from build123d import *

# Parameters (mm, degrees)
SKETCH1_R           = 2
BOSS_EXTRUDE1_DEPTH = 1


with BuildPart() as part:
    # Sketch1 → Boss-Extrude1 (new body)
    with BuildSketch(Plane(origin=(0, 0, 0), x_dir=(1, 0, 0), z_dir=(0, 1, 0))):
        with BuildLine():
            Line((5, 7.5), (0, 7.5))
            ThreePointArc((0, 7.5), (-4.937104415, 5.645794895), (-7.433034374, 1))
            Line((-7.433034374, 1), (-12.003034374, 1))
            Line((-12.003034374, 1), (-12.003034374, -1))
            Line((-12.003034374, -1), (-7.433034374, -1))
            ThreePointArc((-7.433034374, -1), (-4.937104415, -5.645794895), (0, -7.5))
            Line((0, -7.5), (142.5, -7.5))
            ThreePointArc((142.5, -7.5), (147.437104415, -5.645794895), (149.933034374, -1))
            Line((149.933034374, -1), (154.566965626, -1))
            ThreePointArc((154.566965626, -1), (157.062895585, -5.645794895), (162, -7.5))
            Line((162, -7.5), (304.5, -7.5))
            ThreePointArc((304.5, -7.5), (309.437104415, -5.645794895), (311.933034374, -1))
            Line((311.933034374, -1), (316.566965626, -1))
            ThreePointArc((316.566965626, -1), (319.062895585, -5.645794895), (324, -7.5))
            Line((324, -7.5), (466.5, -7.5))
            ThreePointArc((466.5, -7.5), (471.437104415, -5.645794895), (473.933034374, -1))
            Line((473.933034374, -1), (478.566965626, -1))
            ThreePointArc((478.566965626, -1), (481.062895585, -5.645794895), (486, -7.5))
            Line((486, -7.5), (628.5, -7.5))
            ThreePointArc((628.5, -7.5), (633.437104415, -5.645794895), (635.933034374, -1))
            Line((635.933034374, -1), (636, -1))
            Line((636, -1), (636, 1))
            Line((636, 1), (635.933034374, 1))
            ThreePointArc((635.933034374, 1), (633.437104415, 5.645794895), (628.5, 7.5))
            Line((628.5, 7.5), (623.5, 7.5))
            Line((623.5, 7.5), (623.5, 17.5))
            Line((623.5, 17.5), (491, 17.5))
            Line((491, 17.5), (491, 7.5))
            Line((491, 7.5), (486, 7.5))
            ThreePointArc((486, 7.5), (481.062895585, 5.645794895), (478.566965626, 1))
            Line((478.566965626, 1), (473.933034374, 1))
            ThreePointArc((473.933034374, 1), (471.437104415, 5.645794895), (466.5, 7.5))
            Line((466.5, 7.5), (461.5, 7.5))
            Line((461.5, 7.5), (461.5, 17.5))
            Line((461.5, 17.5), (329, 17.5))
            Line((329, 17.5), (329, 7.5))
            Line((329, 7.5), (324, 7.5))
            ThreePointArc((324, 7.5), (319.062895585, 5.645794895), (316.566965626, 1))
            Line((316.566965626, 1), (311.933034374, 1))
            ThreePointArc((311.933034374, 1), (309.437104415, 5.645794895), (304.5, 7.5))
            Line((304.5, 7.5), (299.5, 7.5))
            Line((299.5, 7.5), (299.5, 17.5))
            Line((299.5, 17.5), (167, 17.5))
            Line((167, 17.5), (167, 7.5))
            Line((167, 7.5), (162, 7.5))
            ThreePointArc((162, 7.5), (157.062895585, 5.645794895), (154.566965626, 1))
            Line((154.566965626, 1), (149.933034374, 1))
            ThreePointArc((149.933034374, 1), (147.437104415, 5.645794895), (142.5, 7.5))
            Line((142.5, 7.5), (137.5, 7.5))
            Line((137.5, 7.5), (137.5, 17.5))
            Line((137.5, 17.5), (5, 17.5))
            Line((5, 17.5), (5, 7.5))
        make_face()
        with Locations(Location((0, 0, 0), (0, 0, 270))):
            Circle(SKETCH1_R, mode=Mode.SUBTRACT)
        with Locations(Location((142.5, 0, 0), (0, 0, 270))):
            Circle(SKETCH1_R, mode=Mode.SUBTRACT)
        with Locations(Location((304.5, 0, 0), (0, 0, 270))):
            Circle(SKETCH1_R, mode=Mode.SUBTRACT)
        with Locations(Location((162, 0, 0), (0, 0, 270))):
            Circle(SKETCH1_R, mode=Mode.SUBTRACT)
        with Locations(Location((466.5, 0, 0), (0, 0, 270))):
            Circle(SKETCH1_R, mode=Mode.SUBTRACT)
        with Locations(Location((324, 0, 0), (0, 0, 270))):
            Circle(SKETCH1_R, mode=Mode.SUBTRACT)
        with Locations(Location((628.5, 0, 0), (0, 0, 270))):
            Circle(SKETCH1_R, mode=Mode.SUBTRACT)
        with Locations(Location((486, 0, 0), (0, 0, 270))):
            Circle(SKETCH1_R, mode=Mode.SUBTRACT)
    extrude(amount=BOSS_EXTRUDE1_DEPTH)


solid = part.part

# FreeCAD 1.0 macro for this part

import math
import FreeCAD as App
import Part
import Sketcher
from FreeCAD import Vector

doc = App.newDocument("Part")
body = doc.addObject("PartDesign::Body", "Body")

sketch1 = doc.addObject("Sketcher::SketchObject", "Sketch")
body.addObject(sketch1)
sketch1.AttachmentSupport = (doc.XZ_Plane, [""])
sketch1.MapMode = "FlatFace"
sketch1.addGeometry([
    Part.LineSegment(Vector(5, -7.5, 0), Vector(0, -7.5, 0)),
    Part.ArcOfCircle(Part.Circle(Vector(0, 0, 0), Vector(0, 0, 1), 7.5), math.radians(-172), math.radians(-90)),
    Part.LineSegment(Vector(-7.43, -1, 0), Vector(-12, -1, 0)),
    Part.LineSegment(Vector(-12, -1, 0), Vector(-12, 1, 0)),
    Part.LineSegment(Vector(-12, 1, 0), Vector(-7.43, 1, 0)),
    Part.ArcOfCircle(Part.Circle(Vector(0, 0, 0), Vector(0, 0, 1), 7.5), math.radians(90), math.radians(172)),
    Part.LineSegment(Vector(0, 7.5, 0), Vector(142.5, 7.5, 0)),
    Part.ArcOfCircle(Part.Circle(Vector(142.5, 0, 0), Vector(0, 0, 1), 7.5), math.radians(8), math.radians(90)),
    Part.LineSegment(Vector(149.93, 1, 0), Vector(154.57, 1, 0)),
    Part.ArcOfCircle(Part.Circle(Vector(162, 0, 0), Vector(0, 0, 1), 7.5), math.radians(90), math.radians(172)),
    Part.LineSegment(Vector(162, 7.5, 0), Vector(304.5, 7.5, 0)),
    Part.ArcOfCircle(Part.Circle(Vector(304.5, 0, 0), Vector(0, 0, 1), 7.5), math.radians(8), math.radians(90)),
    Part.LineSegment(Vector(311.93, 1, 0), Vector(316.57, 1, 0)),
    Part.ArcOfCircle(Part.Circle(Vector(324, 0, 0), Vector(0, 0, 1), 7.5), math.radians(90), math.radians(172)),
    Part.LineSegment(Vector(324, 7.5, 0), Vector(466.5, 7.5, 0)),
    Part.ArcOfCircle(Part.Circle(Vector(466.5, 0, 0), Vector(0, 0, 1), 7.5), math.radians(8), math.radians(90)),
    Part.LineSegment(Vector(473.93, 1, 0), Vector(478.57, 1, 0)),
    Part.ArcOfCircle(Part.Circle(Vector(486, 0, 0), Vector(0, 0, 1), 7.5), math.radians(90), math.radians(172)),
    Part.LineSegment(Vector(486, 7.5, 0), Vector(628.5, 7.5, 0)),
    Part.ArcOfCircle(Part.Circle(Vector(628.5, 0, 0), Vector(0, 0, 1), 7.5), math.radians(8), math.radians(90)),
    Part.LineSegment(Vector(635.93, 1, 0), Vector(636, 1, 0)),
    Part.LineSegment(Vector(636, 1, 0), Vector(636, -1, 0)),
    Part.LineSegment(Vector(636, -1, 0), Vector(635.93, -1, 0)),
    Part.ArcOfCircle(Part.Circle(Vector(628.5, 0, 0), Vector(0, 0, 1), 7.5), math.radians(-90), math.radians(-8)),
    Part.LineSegment(Vector(628.5, -7.5, 0), Vector(623.5, -7.5, 0)),
    Part.LineSegment(Vector(623.5, -7.5, 0), Vector(623.5, -17.5, 0)),
    Part.LineSegment(Vector(623.5, -17.5, 0), Vector(491, -17.5, 0)),
    Part.LineSegment(Vector(491, -17.5, 0), Vector(491, -7.5, 0)),
    Part.LineSegment(Vector(491, -7.5, 0), Vector(486, -7.5, 0)),
    Part.ArcOfCircle(Part.Circle(Vector(486, 0, 0), Vector(0, 0, 1), 7.5), math.radians(-172), math.radians(-90)),
    Part.LineSegment(Vector(478.57, -1, 0), Vector(473.93, -1, 0)),
    Part.ArcOfCircle(Part.Circle(Vector(466.5, 0, 0), Vector(0, 0, 1), 7.5), math.radians(-90), math.radians(-8)),
    Part.LineSegment(Vector(466.5, -7.5, 0), Vector(461.5, -7.5, 0)),
    Part.LineSegment(Vector(461.5, -7.5, 0), Vector(461.5, -17.5, 0)),
    Part.LineSegment(Vector(461.5, -17.5, 0), Vector(329, -17.5, 0)),
    Part.LineSegment(Vector(329, -17.5, 0), Vector(329, -7.5, 0)),
    Part.LineSegment(Vector(329, -7.5, 0), Vector(324, -7.5, 0)),
    Part.ArcOfCircle(Part.Circle(Vector(324, 0, 0), Vector(0, 0, 1), 7.5), math.radians(-172), math.radians(-90)),
    Part.LineSegment(Vector(316.57, -1, 0), Vector(311.93, -1, 0)),
    Part.ArcOfCircle(Part.Circle(Vector(304.5, 0, 0), Vector(0, 0, 1), 7.5), math.radians(-90), math.radians(-8)),
    Part.LineSegment(Vector(304.5, -7.5, 0), Vector(299.5, -7.5, 0)),
    Part.LineSegment(Vector(299.5, -7.5, 0), Vector(299.5, -17.5, 0)),
    Part.LineSegment(Vector(299.5, -17.5, 0), Vector(167, -17.5, 0)),
    Part.LineSegment(Vector(167, -17.5, 0), Vector(167, -7.5, 0)),
    Part.LineSegment(Vector(167, -7.5, 0), Vector(162, -7.5, 0)),
    Part.ArcOfCircle(Part.Circle(Vector(162, 0, 0), Vector(0, 0, 1), 7.5), math.radians(-172), math.radians(-90)),
    Part.LineSegment(Vector(154.57, -1, 0), Vector(149.93, -1, 0)),
    Part.ArcOfCircle(Part.Circle(Vector(142.5, 0, 0), Vector(0, 0, 1), 7.5), math.radians(-90), math.radians(-8)),
    Part.LineSegment(Vector(142.5, -7.5, 0), Vector(137.5, -7.5, 0)),
    Part.LineSegment(Vector(137.5, -7.5, 0), Vector(137.5, -17.5, 0)),
    Part.LineSegment(Vector(137.5, -17.5, 0), Vector(5, -17.5, 0)),
    Part.LineSegment(Vector(5, -17.5, 0), Vector(5, -7.5, 0)),
    Part.Circle(Vector(0, 0, 0), Vector(0, 0, 1), 2),
    Part.Circle(Vector(142.5, 0, 0), Vector(0, 0, 1), 2),
    Part.Circle(Vector(162, 0, 0), Vector(0, 0, 1), 2),
    Part.Circle(Vector(304.5, 0, 0), Vector(0, 0, 1), 2),
    Part.Circle(Vector(324, 0, 0), Vector(0, 0, 1), 2),
    Part.Circle(Vector(466.5, 0, 0), Vector(0, 0, 1), 2),
    Part.Circle(Vector(486, 0, 0), Vector(0, 0, 1), 2),
    Part.Circle(Vector(628.5, 0, 0), Vector(0, 0, 1), 2),
], False)
sketch1.addConstraint([
    Sketcher.Constraint("Tangent", 0, 2, 1, 2),
    Sketcher.Constraint("Coincident", 1, 1, 2, 1),
    Sketcher.Constraint("Coincident", 2, 2, 3, 1),
    Sketcher.Constraint("Coincident", 3, 2, 4, 1),
    Sketcher.Constraint("Coincident", 4, 2, 5, 2),
    Sketcher.Constraint("Tangent", 5, 1, 6, 1),
    Sketcher.Constraint("Tangent", 6, 2, 7, 2),
    Sketcher.Constraint("Coincident", 7, 1, 8, 1),
    Sketcher.Constraint("Coincident", 8, 2, 9, 2),
    Sketcher.Constraint("Tangent", 9, 1, 10, 1),
    Sketcher.Constraint("Tangent", 10, 2, 11, 2),
    Sketcher.Constraint("Coincident", 11, 1, 12, 1),
    Sketcher.Constraint("Coincident", 12, 2, 13, 2),
    Sketcher.Constraint("Tangent", 13, 1, 14, 1),
    Sketcher.Constraint("Tangent", 14, 2, 15, 2),
    Sketcher.Constraint("Coincident", 15, 1, 16, 1),
    Sketcher.Constraint("Coincident", 16, 2, 17, 2),
    Sketcher.Constraint("Tangent", 17, 1, 18, 1),
    Sketcher.Constraint("Tangent", 18, 2, 19, 2),
    Sketcher.Constraint("Coincident", 19, 1, 20, 1),
    Sketcher.Constraint("Coincident", 20, 2, 21, 1),
    Sketcher.Constraint("Coincident", 21, 2, 22, 1),
    Sketcher.Constraint("Coincident", 22, 2, 23, 2),
    Sketcher.Constraint("Tangent", 23, 1, 24, 1),
    Sketcher.Constraint("Coincident", 24, 2, 25, 1),
    Sketcher.Constraint("Coincident", 25, 2, 26, 1),
    Sketcher.Constraint("Coincident", 26, 2, 27, 1),
    Sketcher.Constraint("Coincident", 27, 2, 28, 1),
    Sketcher.Constraint("Tangent", 28, 2, 29, 2),
    Sketcher.Constraint("Coincident", 29, 1, 30, 1),
    Sketcher.Constraint("Coincident", 30, 2, 31, 2),
    Sketcher.Constraint("Tangent", 31, 1, 32, 1),
    Sketcher.Constraint("Coincident", 32, 2, 33, 1),
    Sketcher.Constraint("Coincident", 33, 2, 34, 1),
    Sketcher.Constraint("Coincident", 34, 2, 35, 1),
    Sketcher.Constraint("Coincident", 35, 2, 36, 1),
    Sketcher.Constraint("Tangent", 36, 2, 37, 2),
    Sketcher.Constraint("Coincident", 37, 1, 38, 1),
    Sketcher.Constraint("Coincident", 38, 2, 39, 2),
    Sketcher.Constraint("Tangent", 39, 1, 40, 1),
    Sketcher.Constraint("Coincident", 40, 2, 41, 1),
    Sketcher.Constraint("Coincident", 41, 2, 42, 1),
    Sketcher.Constraint("Coincident", 42, 2, 43, 1),
    Sketcher.Constraint("Coincident", 43, 2, 44, 1),
    Sketcher.Constraint("Tangent", 44, 2, 45, 2),
    Sketcher.Constraint("Coincident", 45, 1, 46, 1),
    Sketcher.Constraint("Coincident", 46, 2, 47, 2),
    Sketcher.Constraint("Tangent", 47, 1, 48, 1),
    Sketcher.Constraint("Coincident", 48, 2, 49, 1),
    Sketcher.Constraint("Coincident", 49, 2, 50, 1),
    Sketcher.Constraint("Coincident", 50, 2, 51, 1),
    Sketcher.Constraint("Coincident", 51, 2, 0, 1),
    Sketcher.Constraint("Horizontal", 0),
    Sketcher.Constraint("Horizontal", 2),
    Sketcher.Constraint("Vertical", 3),
    Sketcher.Constraint("Horizontal", 4),
    Sketcher.Constraint("Horizontal", 6),
    Sketcher.Constraint("Horizontal", 8),
    Sketcher.Constraint("Horizontal", 10),
    Sketcher.Constraint("Horizontal", 12),
    Sketcher.Constraint("Horizontal", 14),
    Sketcher.Constraint("Horizontal", 16),
    Sketcher.Constraint("Horizontal", 18),
    Sketcher.Constraint("Horizontal", 20),
    Sketcher.Constraint("Vertical", 21),
    Sketcher.Constraint("Horizontal", 22),
    Sketcher.Constraint("Horizontal", 24),
    Sketcher.Constraint("Vertical", 25),
    Sketcher.Constraint("Horizontal", 26),
    Sketcher.Constraint("Vertical", 27),
    Sketcher.Constraint("Horizontal", 28),
    Sketcher.Constraint("Horizontal", 30),
    Sketcher.Constraint("Horizontal", 32),
    Sketcher.Constraint("Vertical", 33),
    Sketcher.Constraint("Horizontal", 34),
    Sketcher.Constraint("Vertical", 35),
    Sketcher.Constraint("Horizontal", 36),
    Sketcher.Constraint("Horizontal", 38),
    Sketcher.Constraint("Horizontal", 40),
    Sketcher.Constraint("Vertical", 41),
    Sketcher.Constraint("Horizontal", 42),
    Sketcher.Constraint("Vertical", 43),
    Sketcher.Constraint("Horizontal", 44),
    Sketcher.Constraint("Horizontal", 46),
    Sketcher.Constraint("Horizontal", 48),
    Sketcher.Constraint("Vertical", 49),
    Sketcher.Constraint("Horizontal", 50),
    Sketcher.Constraint("Vertical", 51),
    Sketcher.Constraint("Coincident", 1, 3, -1, 1),
    Sketcher.Constraint("Coincident", 5, 3, -1, 1),
    Sketcher.Constraint("Coincident", 52, 3, -1, 1),
    Sketcher.Constraint("Coincident", 23, 3, 19, 3),
    Sketcher.Constraint("Coincident", 29, 3, 17, 3),
    Sketcher.Constraint("Coincident", 31, 3, 15, 3),
    Sketcher.Constraint("Coincident", 37, 3, 13, 3),
    Sketcher.Constraint("Coincident", 39, 3, 11, 3),
    Sketcher.Constraint("Coincident", 45, 3, 9, 3),
    Sketcher.Constraint("Coincident", 47, 3, 7, 3),
    Sketcher.Constraint("Coincident", 53, 3, 7, 3),
    Sketcher.Constraint("Coincident", 54, 3, 9, 3),
    Sketcher.Constraint("Coincident", 55, 3, 11, 3),
    Sketcher.Constraint("Coincident", 56, 3, 13, 3),
    Sketcher.Constraint("Coincident", 57, 3, 15, 3),
    Sketcher.Constraint("Coincident", 58, 3, 17, 3),
    Sketcher.Constraint("Coincident", 59, 3, 19, 3),
    Sketcher.Constraint("Equal", 1, 5),
    Sketcher.Constraint("Equal", 5, 7),
    Sketcher.Constraint("Equal", 7, 9),
    Sketcher.Constraint("Equal", 9, 11),
    Sketcher.Constraint("Equal", 11, 13),
    Sketcher.Constraint("Equal", 13, 15),
    Sketcher.Constraint("Equal", 15, 17),
    Sketcher.Constraint("Equal", 17, 19),
    Sketcher.Constraint("Equal", 19, 23),
    Sketcher.Constraint("Equal", 23, 29),
    Sketcher.Constraint("Equal", 29, 31),
    Sketcher.Constraint("Equal", 31, 37),
    Sketcher.Constraint("Equal", 37, 39),
    Sketcher.Constraint("Equal", 39, 45),
    Sketcher.Constraint("Equal", 45, 47),
    Sketcher.Constraint("Equal", 52, 53),
    Sketcher.Constraint("Equal", 53, 54),
    Sketcher.Constraint("Equal", 54, 55),
    Sketcher.Constraint("Equal", 55, 56),
    Sketcher.Constraint("Equal", 56, 57),
    Sketcher.Constraint("Equal", 57, 58),
    Sketcher.Constraint("Equal", 58, 59),
    Sketcher.Constraint("Symmetric", 19, 1, 22, 2, -1),
    Sketcher.Constraint("Symmetric", 15, 1, 30, 2, -1),
    Sketcher.Constraint("Symmetric", 11, 1, 38, 2, -1),
    Sketcher.Constraint("Horizontal", 4, 2, 7, 1),
    Sketcher.Constraint("Horizontal", 8, 2, 11, 1),
    Sketcher.Constraint("Horizontal", 12, 2, 15, 1),
    Sketcher.Constraint("Horizontal", 16, 2, 19, 1),
    Sketcher.Constraint("Horizontal", 2, 2, 21, 2),
    Sketcher.Constraint("Horizontal", 26, 2, 33, 2),
    Sketcher.Constraint("Horizontal", 34, 2, 41, 2),
    Sketcher.Constraint("Horizontal", 38, 2, 45, 1),
    Sketcher.Constraint("Horizontal", 42, 2, 49, 2),
    Sketcher.Constraint("Equal", 6, 10),
    Sketcher.Constraint("Equal", 8, 12),
    Sketcher.Constraint("Equal", 10, 14),
    Sketcher.Constraint("Equal", 12, 16),
    Sketcher.Constraint("Equal", 14, 18),
    Sketcher.Constraint("Equal", 0, 24),
    Sketcher.Constraint("Equal", 24, 28),
    Sketcher.Constraint("Equal", 28, 32),
    Sketcher.Constraint("Equal", 26, 34),
    Sketcher.Constraint("Equal", 36, 40),
    Sketcher.Constraint("Equal", 34, 42),
    Sketcher.Constraint("Equal", 44, 48),
    Sketcher.Constraint("Diameter", 52, 4.0),
    Sketcher.Constraint("Radius", 1, 7.5),
    Sketcher.Constraint("DistanceX", 0, 2, 0, 1, 5.0),
    Sketcher.Constraint("DistanceY", 3, 1, 3, 2, 2.0),
    Sketcher.Constraint("DistanceY", 25, 2, 25, 1, 10.0),
    Sketcher.Constraint("DistanceX", 6, 1, 6, 2, 142.5),
    Sketcher.Constraint("DistanceX", -1, 1, 9, 3, 162.0),
    Sketcher.Constraint("DistanceX", -1, 1, 20, 2, 636.0),
    Sketcher.Constraint("DistanceX", 2, 2, 2, 1, 4.57),
])
pad1 = doc.addObject("PartDesign::Pad", "Pad")
body.addObject(pad1)
pad1.Profile = sketch1
pad1.Length = 1
pad1.Reversed = True

doc.recompute()
